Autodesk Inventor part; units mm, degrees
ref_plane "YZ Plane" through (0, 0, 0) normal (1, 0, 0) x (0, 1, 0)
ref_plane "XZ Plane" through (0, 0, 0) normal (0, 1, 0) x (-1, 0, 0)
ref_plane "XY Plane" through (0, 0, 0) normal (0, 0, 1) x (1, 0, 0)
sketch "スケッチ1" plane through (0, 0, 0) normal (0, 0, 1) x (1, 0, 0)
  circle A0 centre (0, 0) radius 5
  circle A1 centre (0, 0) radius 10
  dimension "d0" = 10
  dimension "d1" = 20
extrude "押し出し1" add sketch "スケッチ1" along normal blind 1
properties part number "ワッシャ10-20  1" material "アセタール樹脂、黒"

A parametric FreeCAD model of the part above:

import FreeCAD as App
import Part
import Sketcher
from FreeCAD import Vector
Q = App.Units.Quantity

doc = App.newDocument("Part")
body = doc.addObject("PartDesign::Body", "Body")

sketch1 = body.newObject("Sketcher::SketchObject", "Sketch")
sketch1.AttachmentSupport = (doc.getObject("XY_Plane"), [""])
sketch1.MapMode = "FlatFace"
sketch1.addGeometry(Part.Circle(Vector(0, 0, 0), Vector(0, 0, 1), 10), False)
sketch1.addGeometry(Part.Circle(Vector(0, 0, 0), Vector(0, 0, 1), 5), False)
sketch1.addConstraint(Sketcher.Constraint("Coincident", 0, 3, -1, 1))
sketch1.addConstraint(Sketcher.Constraint("Coincident", 1, 3, -1, 1))
sketch1.addConstraint(Sketcher.Constraint("Diameter", 0, Q("20 mm")))
sketch1.addConstraint(Sketcher.Constraint("Diameter", 1, Q("10 mm")))
pad1 = body.newObject("PartDesign::Pad", "Pad")
pad1.Profile = sketch1
pad1.Length = 1

doc.recompute()
